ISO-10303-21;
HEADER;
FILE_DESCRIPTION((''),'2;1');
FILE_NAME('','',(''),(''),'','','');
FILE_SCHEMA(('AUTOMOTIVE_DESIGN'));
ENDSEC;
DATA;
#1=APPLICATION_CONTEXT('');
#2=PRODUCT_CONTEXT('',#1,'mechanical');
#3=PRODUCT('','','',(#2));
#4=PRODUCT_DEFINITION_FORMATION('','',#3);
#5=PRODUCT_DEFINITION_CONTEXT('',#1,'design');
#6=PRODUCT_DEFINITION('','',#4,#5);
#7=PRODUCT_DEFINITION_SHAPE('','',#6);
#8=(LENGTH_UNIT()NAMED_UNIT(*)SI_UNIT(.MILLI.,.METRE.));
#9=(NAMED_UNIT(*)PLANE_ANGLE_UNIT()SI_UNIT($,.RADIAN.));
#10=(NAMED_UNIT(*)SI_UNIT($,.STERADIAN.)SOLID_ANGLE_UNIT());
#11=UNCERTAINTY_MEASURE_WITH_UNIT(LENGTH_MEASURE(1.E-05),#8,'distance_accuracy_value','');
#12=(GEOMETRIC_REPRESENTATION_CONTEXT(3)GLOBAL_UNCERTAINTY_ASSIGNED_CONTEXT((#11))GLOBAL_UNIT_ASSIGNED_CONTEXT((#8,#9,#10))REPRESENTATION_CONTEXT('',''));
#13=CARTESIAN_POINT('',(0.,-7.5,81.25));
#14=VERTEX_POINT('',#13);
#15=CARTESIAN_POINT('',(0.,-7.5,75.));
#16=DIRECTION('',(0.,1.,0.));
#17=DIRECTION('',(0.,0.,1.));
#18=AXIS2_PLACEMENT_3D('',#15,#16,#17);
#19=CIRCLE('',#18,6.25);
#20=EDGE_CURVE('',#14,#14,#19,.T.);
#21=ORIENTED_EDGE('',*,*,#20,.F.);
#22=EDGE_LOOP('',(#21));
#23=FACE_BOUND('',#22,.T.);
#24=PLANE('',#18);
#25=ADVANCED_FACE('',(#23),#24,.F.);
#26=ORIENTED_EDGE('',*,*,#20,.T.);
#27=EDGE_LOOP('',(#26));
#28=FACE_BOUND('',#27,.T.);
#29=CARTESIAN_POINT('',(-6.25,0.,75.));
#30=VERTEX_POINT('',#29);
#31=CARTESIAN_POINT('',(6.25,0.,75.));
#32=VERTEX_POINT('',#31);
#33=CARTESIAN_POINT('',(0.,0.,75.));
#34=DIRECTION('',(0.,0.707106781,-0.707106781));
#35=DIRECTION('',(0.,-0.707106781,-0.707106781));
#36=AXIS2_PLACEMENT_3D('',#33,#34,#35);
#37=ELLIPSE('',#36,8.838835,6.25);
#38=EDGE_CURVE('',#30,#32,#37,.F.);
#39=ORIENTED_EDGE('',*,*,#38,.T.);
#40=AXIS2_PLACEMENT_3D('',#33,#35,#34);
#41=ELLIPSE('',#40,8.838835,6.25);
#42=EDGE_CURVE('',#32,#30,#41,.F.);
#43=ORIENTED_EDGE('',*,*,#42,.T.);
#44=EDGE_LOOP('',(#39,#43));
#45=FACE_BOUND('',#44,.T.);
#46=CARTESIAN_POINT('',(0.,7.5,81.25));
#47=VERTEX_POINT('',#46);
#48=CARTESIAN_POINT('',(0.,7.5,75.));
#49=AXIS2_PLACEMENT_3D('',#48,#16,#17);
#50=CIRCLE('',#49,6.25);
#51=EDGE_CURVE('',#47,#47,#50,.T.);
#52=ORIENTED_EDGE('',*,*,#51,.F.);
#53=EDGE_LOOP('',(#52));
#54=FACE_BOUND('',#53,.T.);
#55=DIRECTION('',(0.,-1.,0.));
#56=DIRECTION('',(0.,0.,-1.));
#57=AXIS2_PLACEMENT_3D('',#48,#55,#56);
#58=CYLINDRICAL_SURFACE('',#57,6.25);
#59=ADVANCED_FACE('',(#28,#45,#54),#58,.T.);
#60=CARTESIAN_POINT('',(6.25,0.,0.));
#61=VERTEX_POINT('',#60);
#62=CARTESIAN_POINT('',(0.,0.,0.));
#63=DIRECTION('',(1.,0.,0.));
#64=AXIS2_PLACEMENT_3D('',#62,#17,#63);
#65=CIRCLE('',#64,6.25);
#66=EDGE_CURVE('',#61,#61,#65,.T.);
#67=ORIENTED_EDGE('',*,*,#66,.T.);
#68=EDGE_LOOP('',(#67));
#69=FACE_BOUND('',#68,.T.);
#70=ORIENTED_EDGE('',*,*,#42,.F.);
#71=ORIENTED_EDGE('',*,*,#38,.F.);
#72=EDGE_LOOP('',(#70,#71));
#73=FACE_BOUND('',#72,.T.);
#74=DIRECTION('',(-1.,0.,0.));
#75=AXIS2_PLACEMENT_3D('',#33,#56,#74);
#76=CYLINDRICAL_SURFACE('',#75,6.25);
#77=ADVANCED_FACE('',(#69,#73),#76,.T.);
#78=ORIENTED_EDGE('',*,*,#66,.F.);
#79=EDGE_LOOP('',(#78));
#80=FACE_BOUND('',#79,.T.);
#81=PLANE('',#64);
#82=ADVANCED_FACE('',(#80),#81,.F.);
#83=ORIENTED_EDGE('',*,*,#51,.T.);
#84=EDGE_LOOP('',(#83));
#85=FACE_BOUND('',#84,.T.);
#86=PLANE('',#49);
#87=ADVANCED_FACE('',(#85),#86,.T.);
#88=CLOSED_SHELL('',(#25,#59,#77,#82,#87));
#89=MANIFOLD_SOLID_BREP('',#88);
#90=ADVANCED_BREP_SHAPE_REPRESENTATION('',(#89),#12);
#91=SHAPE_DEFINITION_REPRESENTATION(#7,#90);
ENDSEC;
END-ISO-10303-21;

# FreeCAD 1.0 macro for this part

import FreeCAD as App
import Part
import Sketcher
from FreeCAD import Vector
Q = App.Units.Quantity

doc = App.newDocument("Part")
body = doc.addObject("PartDesign::Body", "Body")

sketch1 = doc.addObject("Sketcher::SketchObject", "Sketch")
body.addObject(sketch1)
sketch1.AttachmentSupport = (doc.XY_Plane, [""])
sketch1.MapMode = "FlatFace"
sketch1.addGeometry(Part.Circle(Vector(0, 0, 0), Vector(0, 0, 1), 6), False)
sketch1.addConstraint(Sketcher.Constraint("Coincident", 0, 3, -1, 1))
sketch1.addConstraint(Sketcher.Constraint("Diameter", 0, Q("12.5 mm")))
pad1 = doc.addObject("PartDesign::Pad", "Pad")
body.addObject(pad1)
pad1.Profile = sketch1
pad1.Length = 75

sketch2 = doc.addObject("Sketcher::SketchObject", "Sketch001")
body.addObject(sketch2)
sketch2.AttachmentSupport = (doc.XZ_Plane, [""])
sketch2.MapMode = "FlatFace"
sketch2.addGeometry(Part.Circle(Vector(0, 75, 0), Vector(0, 0, 1), 6), False)
sketch2.addConstraint(Sketcher.Constraint("PointOnObject", 0, 3, -2))
sketch2.addConstraint(Sketcher.Constraint("Diameter", 0, Q("12.5 mm")))
sketch2.addConstraint(Sketcher.Constraint("DistanceY", -1, 1, 0, 3, Q("75 mm")))
pad2 = doc.addObject("PartDesign::Pad", "Pad001")
body.addObject(pad2)
pad2.Profile = sketch2
pad2.Length = 15
pad2.Midplane = True

doc.recompute()
